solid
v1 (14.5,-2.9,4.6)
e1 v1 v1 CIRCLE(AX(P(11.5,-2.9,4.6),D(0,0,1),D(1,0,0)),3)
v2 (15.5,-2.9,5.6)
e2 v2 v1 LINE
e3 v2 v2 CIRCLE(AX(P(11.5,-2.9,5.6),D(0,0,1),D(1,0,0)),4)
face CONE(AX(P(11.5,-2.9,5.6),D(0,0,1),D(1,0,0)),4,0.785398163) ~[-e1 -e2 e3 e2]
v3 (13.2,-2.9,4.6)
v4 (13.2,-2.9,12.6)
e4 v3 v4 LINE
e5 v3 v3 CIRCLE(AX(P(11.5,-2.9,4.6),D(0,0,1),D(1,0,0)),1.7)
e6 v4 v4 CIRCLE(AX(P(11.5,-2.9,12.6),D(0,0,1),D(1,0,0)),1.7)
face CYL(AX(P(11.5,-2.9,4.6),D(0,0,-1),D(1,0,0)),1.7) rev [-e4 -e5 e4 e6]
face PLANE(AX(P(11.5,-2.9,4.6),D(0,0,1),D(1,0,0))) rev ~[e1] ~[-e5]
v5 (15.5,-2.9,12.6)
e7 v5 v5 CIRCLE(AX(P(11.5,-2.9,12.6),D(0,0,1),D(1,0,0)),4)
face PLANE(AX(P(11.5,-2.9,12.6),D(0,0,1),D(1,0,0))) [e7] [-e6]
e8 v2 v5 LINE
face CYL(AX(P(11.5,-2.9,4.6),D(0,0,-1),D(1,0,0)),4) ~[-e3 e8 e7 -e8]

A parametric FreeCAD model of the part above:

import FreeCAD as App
import Part
import Sketcher
from FreeCAD import Vector
Q = App.Units.Quantity


def edges_at(feature, points):
    """Names of the edges that pass closest to the given points."""
    edges = feature.Shape.Edges
    near = lambda p: min(range(len(edges)), key=lambda i: edges[i].distToShape(Part.Vertex(*p))[0])
    return sorted({f"Edge{near(p) + 1}" for p in points})

doc = App.newDocument("Part")
body = doc.addObject("PartDesign::Body", "Body")

# Sketch on XY plane
sketch1 = body.newObject("Sketcher::SketchObject", "Sketch")
sketch1.AttachmentSupport = (doc.getObject("XY_Plane"), [""])
sketch1.MapMode = "FlatFace"
sketch1.AttachmentOffset = App.Placement(Vector(0, 0, 4.6), App.Rotation())
sketch1.addGeometry(Part.Circle(Vector(11.5, -2.9, 0), Vector(0, 0, 1), 1.7), False)
sketch1.addConstraint([
    Sketcher.Constraint("Diameter", 0, Q("3.4 mm")),
    Sketcher.Constraint("DistanceX", -1, 1, 0, 3, Q("11.5 mm")),
    Sketcher.Constraint("DistanceY", 0, 3, -1, 1, Q("2.9 mm")),
])
pad1 = body.newObject("PartDesign::Pad", "Pad")
pad1.Profile = sketch1
pad1.Length = 8
body2 = doc.addObject("PartDesign::Body", "Body001")

# Sketch on XY plane
sketch2 = body2.newObject("Sketcher::SketchObject", "Sketch001")
sketch2.AttachmentSupport = (doc.getObject("XY_Plane001"), [""])
sketch2.MapMode = "FlatFace"
sketch2.AttachmentOffset = App.Placement(Vector(0, 0, 4.6), App.Rotation())
sketch2.addGeometry(Part.Circle(Vector(11.5, -2.9, 0), Vector(0, 0, 1), 4), False)
sketch2.addConstraint([
    Sketcher.Constraint("Diameter", 0, Q("8 mm")),
    Sketcher.Constraint("DistanceX", -1, 1, 0, 3, Q("11.5 mm")),
    Sketcher.Constraint("DistanceY", 0, 3, -1, 1, Q("2.9 mm")),
])
pad2 = body2.newObject("PartDesign::Pad", "Pad001")
pad2.Profile = sketch2
pad2.Length = 8
doc.recompute()

chamfer = body2.newObject("PartDesign::Chamfer", "Chamfer")
chamfer.Base = (pad2, edges_at(pad2, [(7.5, -2.9, 4.6)]))
chamfer.Size = 1
doc.recompute()

boolean = body2.newObject("PartDesign::Boolean", "Boolean")
boolean.Type = "Cut"
boolean.addObjects([body])

doc.recompute()
